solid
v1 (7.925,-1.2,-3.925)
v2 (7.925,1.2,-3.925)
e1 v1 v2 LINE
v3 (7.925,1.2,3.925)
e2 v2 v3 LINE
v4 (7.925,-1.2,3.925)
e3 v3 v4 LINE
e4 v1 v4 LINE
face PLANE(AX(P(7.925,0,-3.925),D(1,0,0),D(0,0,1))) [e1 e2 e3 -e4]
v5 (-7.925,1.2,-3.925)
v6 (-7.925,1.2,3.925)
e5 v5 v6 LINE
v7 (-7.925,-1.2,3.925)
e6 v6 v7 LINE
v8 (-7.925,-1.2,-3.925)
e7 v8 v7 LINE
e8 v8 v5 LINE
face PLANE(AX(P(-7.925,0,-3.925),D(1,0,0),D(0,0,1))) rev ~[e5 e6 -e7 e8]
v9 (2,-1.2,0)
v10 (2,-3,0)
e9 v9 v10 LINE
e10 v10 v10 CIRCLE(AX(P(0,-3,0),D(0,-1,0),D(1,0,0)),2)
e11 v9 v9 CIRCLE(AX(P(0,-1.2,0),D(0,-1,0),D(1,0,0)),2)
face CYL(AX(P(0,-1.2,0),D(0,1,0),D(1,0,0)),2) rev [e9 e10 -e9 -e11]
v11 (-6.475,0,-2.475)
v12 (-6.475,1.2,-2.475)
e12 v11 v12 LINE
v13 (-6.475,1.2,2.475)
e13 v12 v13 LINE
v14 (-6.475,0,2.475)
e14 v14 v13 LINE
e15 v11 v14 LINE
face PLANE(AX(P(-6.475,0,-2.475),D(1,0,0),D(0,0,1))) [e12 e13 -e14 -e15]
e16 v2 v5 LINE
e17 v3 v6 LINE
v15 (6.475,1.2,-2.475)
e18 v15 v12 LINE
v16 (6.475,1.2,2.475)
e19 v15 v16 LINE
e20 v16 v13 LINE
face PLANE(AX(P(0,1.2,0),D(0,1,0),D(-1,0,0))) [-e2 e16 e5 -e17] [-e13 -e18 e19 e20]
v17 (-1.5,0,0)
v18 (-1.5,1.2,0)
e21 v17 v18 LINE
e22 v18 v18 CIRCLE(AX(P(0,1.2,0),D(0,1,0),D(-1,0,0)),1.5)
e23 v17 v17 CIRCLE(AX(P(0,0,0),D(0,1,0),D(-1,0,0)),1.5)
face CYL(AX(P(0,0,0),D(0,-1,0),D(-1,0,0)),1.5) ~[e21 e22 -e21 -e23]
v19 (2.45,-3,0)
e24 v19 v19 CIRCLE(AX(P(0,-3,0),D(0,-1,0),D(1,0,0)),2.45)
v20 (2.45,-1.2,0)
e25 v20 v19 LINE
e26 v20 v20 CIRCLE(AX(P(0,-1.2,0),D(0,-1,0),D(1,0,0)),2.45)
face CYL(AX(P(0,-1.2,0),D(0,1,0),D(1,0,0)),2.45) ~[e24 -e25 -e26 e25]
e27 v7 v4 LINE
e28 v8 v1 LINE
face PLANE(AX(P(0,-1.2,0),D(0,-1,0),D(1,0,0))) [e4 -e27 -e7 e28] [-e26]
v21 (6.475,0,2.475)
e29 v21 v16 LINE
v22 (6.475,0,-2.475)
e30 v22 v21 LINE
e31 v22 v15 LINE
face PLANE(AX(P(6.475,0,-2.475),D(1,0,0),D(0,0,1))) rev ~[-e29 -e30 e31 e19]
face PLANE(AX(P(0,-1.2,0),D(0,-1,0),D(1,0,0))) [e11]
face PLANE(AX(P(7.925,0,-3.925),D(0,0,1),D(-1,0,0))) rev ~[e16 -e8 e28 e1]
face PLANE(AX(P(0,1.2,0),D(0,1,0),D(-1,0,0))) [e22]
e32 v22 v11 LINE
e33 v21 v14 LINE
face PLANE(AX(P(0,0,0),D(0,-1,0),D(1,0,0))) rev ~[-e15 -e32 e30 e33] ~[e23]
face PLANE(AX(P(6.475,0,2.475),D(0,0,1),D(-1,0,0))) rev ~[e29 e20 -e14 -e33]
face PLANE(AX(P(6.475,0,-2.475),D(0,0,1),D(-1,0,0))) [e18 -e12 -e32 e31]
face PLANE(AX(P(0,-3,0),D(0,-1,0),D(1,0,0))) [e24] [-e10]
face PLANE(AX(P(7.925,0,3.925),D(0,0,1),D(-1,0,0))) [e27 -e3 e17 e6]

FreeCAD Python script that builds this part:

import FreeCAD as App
import Part
import Sketcher

V = App.Vector
Q = App.Units.Quantity


def add_polygon(sketch, points):
    """Adds a closed chain of lines whose ends are joined by coincident constraints."""
    first, n = sketch.GeometryCount, len(points)
    for a, b in zip(points, points[1:] + points[:1]):
        sketch.addGeometry(Part.LineSegment(App.Vector(*a, 0), App.Vector(*b, 0)), False)
    for i in range(n):
        sketch.addConstraint(Sketcher.Constraint("Coincident", first + i, 2, first + (i + 1) % n, 1))

doc = App.newDocument("Part")
body = doc.addObject("PartDesign::Body", "Body")

# Sketch on XZ plane
sketch1 = body.newObject("Sketcher::SketchObject", "Sketch")
sketch1.AttachmentSupport = (doc.getObject("XZ_Plane"), [""])
sketch1.MapMode = "FlatFace"
add_polygon(sketch1, [(-7.925, 3.925), (-7.925, -3.925), (7.925, -3.925), (7.925, 3.925)])  # lines 0-3
sketch1.addConstraint(Sketcher.Constraint("Vertical", 0))
sketch1.addConstraint(Sketcher.Constraint("Horizontal", 1))
sketch1.addConstraint(Sketcher.Constraint("Vertical", 2))
sketch1.addConstraint(Sketcher.Constraint("Horizontal", 3))
sketch1.addConstraint(Sketcher.Constraint("Symmetric", 0, 2, 2, 2, -1, 1))
sketch1.addConstraint(Sketcher.Constraint("DistanceX", 1, 1, 1, 2, Q("15.85 mm")))
sketch1.addConstraint(Sketcher.Constraint("DistanceY", 0, 2, 0, 1, Q("7.85 mm")))
pad1 = body.newObject("PartDesign::Pad", "Pad")
pad1.Profile = sketch1
pad1.Length = 1.2

# Sketch on XZ plane
sketch2 = body.newObject("Sketcher::SketchObject", "Sketch001")
sketch2.AttachmentSupport = (doc.getObject("XZ_Plane"), [""])
sketch2.MapMode = "FlatFace"
sketch2.AttachmentOffset = App.Placement(V(0, 0, 1.2), App.Rotation())
sketch2.addGeometry(Part.Circle(V(0, 0, 0), V(0, 0, 1), 2.45), False)
sketch2.addGeometry(Part.Circle(V(0, 0, 0), V(0, 0, 1), 2), False)
sketch2.addConstraint(Sketcher.Constraint("Coincident", 0, 3, -1, 1))
sketch2.addConstraint(Sketcher.Constraint("Coincident", 1, 3, -1, 1))
sketch2.addConstraint(Sketcher.Constraint("Diameter", 1, Q("4 mm")))
sketch2.addConstraint(Sketcher.Constraint("Diameter", 0, Q("4.9 mm")))
pad2 = body.newObject("PartDesign::Pad", "Pad001")
pad2.Profile = sketch2
pad2.Length = 1.8

# Sketch on XZ plane
sketch3 = body.newObject("Sketcher::SketchObject", "Sketch002")
sketch3.AttachmentSupport = (doc.getObject("XZ_Plane"), [""])
sketch3.MapMode = "FlatFace"
add_polygon(sketch3, [(7.925, 3.925), (7.925, -3.925), (-7.925, -3.925), (-7.925, 3.925)])  # lines 0-3
add_polygon(sketch3, [(-6.475, -2.475), (6.475, -2.475), (6.475, 2.475), (-6.475, 2.475)])  # lines 4-7
sketch3.addGeometry(Part.Circle(V(0, 0, 0), V(0, 0, 1), 1.5), False)  # 8
sketch3.addConstraint(Sketcher.Constraint("Vertical", 0))
sketch3.addConstraint(Sketcher.Constraint("Horizontal", 1))
sketch3.addConstraint(Sketcher.Constraint("Vertical", 2))
sketch3.addConstraint(Sketcher.Constraint("Horizontal", 3))
sketch3.addConstraint(Sketcher.Constraint("Horizontal", 4))
sketch3.addConstraint(Sketcher.Constraint("Vertical", 5))
sketch3.addConstraint(Sketcher.Constraint("Horizontal", 6))
sketch3.addConstraint(Sketcher.Constraint("Vertical", 7))
sketch3.addConstraint(Sketcher.Constraint("Coincident", 8, 3, -1, 1))
sketch3.addConstraint(Sketcher.Constraint("Symmetric", 0, 2, 2, 2, -1, 1))
sketch3.addConstraint(Sketcher.Constraint("Symmetric", 4, 2, 6, 2, -1, 1))
sketch3.addConstraint(Sketcher.Constraint("Diameter", 8, Q("3 mm")))
sketch3.addConstraint(Sketcher.Constraint("DistanceX", 1, 2, 1, 1, Q("15.85 mm")))
sketch3.addConstraint(Sketcher.Constraint("DistanceX", 4, 1, 4, 2, Q("12.95 mm")))
sketch3.addConstraint(Sketcher.Constraint("DistanceY", 0, 2, 0, 1, Q("7.85 mm")))
sketch3.addConstraint(Sketcher.Constraint("DistanceY", 5, 1, 5, 2, Q("4.95 mm")))
pad3 = body.newObject("PartDesign::Pad", "Pad002")
pad3.Profile = sketch3
pad3.Length = 1.2
pad3.Reversed = True

doc.recompute()
